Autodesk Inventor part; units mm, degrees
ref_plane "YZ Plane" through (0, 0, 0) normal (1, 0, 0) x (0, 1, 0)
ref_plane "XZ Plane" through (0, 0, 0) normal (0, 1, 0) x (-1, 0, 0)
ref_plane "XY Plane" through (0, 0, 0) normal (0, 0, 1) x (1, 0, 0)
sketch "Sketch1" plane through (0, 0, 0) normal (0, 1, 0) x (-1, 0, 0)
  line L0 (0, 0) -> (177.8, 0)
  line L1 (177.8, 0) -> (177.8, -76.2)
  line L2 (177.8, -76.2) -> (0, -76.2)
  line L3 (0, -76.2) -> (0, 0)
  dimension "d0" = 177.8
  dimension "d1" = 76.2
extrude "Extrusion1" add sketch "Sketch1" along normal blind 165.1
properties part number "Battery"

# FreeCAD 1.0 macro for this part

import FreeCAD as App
import Part
import Sketcher
Q = App.Units.Quantity


def add_polygon(sketch, points):
    """Adds a closed chain of lines whose ends are joined by coincident constraints."""
    first, n = sketch.GeometryCount, len(points)
    for a, b in zip(points, points[1:] + points[:1]):
        sketch.addGeometry(Part.LineSegment(App.Vector(*a, 0), App.Vector(*b, 0)), False)
    for i in range(n):
        sketch.addConstraint(Sketcher.Constraint("Coincident", first + i, 2, first + (i + 1) % n, 1))

doc = App.newDocument("Part")
params = doc.addObject("Spreadsheet::Sheet", "Params")
for row, (alias, value) in enumerate([
    ("sketch1_width", "7 in"),
    ("sketch1_height", "3 in"),
    ("pad1_length", "6.5 in"),
], start=1):
    params.set(f"A{row}", alias)
    params.set(f"B{row}", "=" + value)
    params.setAlias(f"B{row}", alias)

body = doc.addObject("PartDesign::Body", "Body")

# Sketch on XZ plane
sketch1 = body.newObject("Sketcher::SketchObject", "Sketch")
sketch1.AttachmentSupport = (doc.getObject("XZ_Plane"), [""])
sketch1.MapMode = "FlatFace"
add_polygon(sketch1, [(-178, 0), (0, 0), (0, -76), (-178, -76)])  # lines 0-3
sketch1.addConstraint([
    Sketcher.Constraint("Horizontal", 0),
    Sketcher.Constraint("Vertical", 1),
    Sketcher.Constraint("Horizontal", 2),
    Sketcher.Constraint("Vertical", 3),
    Sketcher.Constraint("Coincident", 0, 2, -1, 1),
    Sketcher.Constraint("DistanceX", 0, 1, 0, 2, Q("7 in")),
    Sketcher.Constraint("DistanceY", 1, 2, 1, 1, Q("3 in")),
])
sketch1.setExpression("Constraints[9]", "Params.sketch1_width")
sketch1.setExpression("Constraints[10]", "Params.sketch1_height")
pad1 = body.newObject("PartDesign::Pad", "Pad")
pad1.Profile = sketch1
pad1.setExpression("Length", "Params.pad1_length")
pad1.Reversed = True

doc.recompute()
